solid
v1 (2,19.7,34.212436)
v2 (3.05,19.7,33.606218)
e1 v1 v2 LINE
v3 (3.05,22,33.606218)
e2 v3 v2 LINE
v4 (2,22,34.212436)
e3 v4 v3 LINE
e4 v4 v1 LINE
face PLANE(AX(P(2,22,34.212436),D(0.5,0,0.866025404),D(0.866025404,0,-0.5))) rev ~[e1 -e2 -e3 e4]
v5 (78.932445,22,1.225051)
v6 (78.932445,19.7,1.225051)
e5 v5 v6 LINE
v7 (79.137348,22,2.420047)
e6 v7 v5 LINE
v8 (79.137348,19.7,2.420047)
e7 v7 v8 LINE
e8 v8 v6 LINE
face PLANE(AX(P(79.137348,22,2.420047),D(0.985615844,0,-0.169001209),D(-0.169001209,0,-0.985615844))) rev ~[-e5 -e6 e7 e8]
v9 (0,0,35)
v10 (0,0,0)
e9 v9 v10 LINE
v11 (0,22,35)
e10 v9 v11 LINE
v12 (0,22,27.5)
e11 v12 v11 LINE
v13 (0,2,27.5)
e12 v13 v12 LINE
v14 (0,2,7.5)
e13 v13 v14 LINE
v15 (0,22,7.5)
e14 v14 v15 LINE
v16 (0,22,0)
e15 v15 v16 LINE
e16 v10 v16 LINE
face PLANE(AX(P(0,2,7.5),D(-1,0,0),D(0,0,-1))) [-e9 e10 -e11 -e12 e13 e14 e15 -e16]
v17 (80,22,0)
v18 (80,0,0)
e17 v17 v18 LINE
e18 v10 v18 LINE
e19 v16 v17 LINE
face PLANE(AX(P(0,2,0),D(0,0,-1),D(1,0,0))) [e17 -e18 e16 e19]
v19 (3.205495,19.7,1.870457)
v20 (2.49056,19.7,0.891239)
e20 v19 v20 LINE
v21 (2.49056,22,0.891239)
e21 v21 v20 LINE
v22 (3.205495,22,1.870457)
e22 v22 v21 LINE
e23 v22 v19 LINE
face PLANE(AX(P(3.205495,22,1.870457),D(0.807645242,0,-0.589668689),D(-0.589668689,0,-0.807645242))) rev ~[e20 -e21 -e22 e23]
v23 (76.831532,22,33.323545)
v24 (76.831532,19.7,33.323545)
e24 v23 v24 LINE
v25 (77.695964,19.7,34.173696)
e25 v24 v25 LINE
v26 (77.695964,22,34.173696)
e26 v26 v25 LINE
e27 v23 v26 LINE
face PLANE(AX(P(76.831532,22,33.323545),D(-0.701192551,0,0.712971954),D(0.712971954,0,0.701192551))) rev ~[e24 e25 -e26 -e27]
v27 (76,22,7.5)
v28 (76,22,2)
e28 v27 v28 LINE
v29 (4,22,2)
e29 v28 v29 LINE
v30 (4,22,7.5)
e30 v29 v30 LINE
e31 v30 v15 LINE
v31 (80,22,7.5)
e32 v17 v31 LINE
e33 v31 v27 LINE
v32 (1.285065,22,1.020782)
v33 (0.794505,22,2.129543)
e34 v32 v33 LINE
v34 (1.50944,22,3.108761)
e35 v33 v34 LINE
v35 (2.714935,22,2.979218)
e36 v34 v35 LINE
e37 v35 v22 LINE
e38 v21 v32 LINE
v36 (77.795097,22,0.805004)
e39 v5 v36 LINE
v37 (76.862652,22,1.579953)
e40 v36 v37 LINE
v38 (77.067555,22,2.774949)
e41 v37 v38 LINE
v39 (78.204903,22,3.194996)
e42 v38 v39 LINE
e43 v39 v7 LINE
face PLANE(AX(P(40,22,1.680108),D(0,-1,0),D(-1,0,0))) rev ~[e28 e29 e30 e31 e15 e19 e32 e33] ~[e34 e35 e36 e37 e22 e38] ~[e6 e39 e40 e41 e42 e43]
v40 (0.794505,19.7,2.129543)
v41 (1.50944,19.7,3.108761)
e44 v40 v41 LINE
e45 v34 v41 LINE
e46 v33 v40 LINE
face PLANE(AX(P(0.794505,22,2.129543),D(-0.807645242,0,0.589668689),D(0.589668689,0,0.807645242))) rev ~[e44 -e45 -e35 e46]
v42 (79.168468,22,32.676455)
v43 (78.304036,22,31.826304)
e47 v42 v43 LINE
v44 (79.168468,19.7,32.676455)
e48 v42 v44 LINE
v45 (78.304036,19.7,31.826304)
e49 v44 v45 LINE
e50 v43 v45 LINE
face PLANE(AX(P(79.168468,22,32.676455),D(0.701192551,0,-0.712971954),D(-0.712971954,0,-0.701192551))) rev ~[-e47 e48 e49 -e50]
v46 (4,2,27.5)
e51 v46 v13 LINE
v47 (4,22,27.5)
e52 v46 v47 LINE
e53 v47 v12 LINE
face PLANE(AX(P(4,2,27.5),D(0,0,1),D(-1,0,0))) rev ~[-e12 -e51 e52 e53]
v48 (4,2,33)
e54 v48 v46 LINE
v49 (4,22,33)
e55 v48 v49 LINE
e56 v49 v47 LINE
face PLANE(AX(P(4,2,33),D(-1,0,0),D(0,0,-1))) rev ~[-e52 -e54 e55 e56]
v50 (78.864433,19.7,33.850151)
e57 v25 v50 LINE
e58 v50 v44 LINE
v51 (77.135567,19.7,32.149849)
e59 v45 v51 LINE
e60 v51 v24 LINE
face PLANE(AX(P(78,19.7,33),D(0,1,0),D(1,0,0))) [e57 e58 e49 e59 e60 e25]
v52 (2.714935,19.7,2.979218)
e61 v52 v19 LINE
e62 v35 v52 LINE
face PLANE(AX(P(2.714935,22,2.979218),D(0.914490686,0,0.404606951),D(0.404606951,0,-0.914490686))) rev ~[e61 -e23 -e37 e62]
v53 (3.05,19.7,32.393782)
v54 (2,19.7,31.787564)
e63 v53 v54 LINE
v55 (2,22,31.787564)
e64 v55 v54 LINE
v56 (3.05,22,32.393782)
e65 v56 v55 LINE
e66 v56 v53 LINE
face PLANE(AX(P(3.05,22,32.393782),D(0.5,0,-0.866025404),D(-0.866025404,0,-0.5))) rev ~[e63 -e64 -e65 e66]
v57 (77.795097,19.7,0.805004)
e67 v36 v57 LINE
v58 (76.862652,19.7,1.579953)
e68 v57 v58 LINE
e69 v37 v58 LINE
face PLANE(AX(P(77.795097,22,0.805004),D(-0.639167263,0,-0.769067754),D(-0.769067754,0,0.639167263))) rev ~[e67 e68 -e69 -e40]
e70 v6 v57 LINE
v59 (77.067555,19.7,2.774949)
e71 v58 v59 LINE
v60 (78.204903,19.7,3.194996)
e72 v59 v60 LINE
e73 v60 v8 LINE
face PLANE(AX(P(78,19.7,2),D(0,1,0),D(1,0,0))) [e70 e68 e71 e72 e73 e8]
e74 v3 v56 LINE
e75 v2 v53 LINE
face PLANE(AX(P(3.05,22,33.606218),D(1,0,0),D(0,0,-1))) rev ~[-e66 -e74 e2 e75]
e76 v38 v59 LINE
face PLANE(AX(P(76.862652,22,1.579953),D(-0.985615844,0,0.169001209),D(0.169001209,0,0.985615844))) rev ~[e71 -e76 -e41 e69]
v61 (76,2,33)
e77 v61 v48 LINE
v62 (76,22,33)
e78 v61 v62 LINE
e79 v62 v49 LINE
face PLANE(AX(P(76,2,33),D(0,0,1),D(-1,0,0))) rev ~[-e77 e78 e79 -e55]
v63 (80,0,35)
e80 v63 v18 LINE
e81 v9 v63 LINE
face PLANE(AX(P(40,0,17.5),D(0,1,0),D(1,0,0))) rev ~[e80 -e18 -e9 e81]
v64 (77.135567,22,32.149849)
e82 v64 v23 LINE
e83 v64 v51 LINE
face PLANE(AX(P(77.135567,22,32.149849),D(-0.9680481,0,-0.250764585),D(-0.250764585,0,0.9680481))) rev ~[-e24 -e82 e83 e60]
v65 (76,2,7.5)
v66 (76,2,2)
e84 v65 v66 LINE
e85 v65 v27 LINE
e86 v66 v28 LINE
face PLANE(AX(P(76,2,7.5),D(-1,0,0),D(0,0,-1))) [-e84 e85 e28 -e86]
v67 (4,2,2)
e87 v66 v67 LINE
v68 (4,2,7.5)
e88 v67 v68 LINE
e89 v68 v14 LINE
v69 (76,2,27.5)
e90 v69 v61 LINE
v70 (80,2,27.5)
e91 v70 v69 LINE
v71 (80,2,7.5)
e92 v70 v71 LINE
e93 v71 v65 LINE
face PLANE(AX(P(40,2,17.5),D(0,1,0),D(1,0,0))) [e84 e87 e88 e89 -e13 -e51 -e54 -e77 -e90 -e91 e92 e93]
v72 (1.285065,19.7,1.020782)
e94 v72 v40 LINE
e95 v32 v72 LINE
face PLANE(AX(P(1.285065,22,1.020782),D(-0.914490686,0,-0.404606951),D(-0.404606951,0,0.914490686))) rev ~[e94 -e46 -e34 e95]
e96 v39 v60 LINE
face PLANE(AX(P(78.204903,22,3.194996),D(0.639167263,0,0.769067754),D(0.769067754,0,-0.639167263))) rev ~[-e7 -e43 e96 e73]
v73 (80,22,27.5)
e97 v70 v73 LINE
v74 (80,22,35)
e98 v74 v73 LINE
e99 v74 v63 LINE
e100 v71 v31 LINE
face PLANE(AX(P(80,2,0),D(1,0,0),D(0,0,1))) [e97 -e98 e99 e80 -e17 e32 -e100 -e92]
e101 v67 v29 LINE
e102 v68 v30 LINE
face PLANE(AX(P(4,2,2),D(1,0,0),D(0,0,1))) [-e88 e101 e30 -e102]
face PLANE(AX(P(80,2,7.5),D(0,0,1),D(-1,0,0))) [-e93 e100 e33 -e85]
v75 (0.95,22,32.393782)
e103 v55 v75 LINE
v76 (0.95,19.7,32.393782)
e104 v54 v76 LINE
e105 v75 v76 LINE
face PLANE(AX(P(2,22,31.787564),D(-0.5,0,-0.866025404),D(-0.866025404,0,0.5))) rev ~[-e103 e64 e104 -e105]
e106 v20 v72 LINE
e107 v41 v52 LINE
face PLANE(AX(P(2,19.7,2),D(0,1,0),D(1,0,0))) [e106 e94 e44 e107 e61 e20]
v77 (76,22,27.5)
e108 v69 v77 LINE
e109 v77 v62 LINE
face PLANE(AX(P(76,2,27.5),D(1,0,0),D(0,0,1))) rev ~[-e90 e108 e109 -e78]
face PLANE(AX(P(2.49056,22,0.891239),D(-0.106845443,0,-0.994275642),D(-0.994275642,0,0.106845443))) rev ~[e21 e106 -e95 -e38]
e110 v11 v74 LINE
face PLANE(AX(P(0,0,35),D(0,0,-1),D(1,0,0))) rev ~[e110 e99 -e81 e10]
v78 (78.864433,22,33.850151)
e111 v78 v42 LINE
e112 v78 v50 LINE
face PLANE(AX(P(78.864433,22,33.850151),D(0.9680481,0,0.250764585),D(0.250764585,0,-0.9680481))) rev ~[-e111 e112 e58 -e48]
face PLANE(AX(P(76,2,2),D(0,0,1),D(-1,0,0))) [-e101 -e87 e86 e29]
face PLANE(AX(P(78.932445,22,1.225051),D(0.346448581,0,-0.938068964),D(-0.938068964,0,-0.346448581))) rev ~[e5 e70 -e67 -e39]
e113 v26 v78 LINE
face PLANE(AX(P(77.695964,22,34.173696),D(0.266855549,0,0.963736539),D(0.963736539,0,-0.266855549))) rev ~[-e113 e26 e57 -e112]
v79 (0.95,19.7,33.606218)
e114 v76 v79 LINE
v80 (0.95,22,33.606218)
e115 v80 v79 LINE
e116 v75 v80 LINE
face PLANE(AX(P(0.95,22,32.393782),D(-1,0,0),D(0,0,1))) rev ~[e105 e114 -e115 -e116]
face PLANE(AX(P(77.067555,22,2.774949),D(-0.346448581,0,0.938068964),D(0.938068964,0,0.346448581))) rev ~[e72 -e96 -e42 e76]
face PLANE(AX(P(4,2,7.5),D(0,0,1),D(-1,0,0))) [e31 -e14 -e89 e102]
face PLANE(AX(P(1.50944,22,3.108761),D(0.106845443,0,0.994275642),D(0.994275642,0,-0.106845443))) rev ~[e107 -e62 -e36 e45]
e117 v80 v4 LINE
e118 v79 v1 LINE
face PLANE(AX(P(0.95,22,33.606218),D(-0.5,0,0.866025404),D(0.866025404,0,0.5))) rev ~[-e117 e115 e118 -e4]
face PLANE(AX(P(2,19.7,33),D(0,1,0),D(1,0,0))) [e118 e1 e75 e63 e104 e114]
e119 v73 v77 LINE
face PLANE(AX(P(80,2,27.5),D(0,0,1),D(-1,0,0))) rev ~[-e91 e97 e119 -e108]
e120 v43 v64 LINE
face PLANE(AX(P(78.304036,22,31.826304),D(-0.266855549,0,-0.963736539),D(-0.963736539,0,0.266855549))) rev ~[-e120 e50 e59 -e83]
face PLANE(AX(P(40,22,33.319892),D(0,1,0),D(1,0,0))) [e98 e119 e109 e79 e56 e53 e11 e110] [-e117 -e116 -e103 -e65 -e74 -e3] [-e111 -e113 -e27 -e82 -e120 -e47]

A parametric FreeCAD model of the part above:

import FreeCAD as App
import Part
import Sketcher
from FreeCAD import Vector
Q = App.Units.Quantity


def add_polygon(sketch, points):
    """Adds a closed chain of lines whose ends are joined by coincident constraints."""
    first, n = sketch.GeometryCount, len(points)
    for a, b in zip(points, points[1:] + points[:1]):
        sketch.addGeometry(Part.LineSegment(App.Vector(*a, 0), App.Vector(*b, 0)), False)
    for i in range(n):
        sketch.addConstraint(Sketcher.Constraint("Coincident", first + i, 2, first + (i + 1) % n, 1))

doc = App.newDocument("Part")
body = doc.addObject("PartDesign::Body", "Body")

sketch1 = body.newObject("Sketcher::SketchObject", "Sketch")
sketch1.AttachmentSupport = (doc.getObject("XZ_Plane"), [""])
sketch1.MapMode = "FlatFace"
add_polygon(sketch1, [(0, 0), (0, 35), (80, 35), (80, 0)])
sketch1.addConstraint([
    Sketcher.Constraint("Vertical", 0),
    Sketcher.Constraint("Horizontal", 1),
    Sketcher.Constraint("Vertical", 2),
    Sketcher.Constraint("Horizontal", 3),
    Sketcher.Constraint("Coincident", 3, 2, -1, 1),
    Sketcher.Constraint("DistanceX", 1, 1, 1, 2, 80.0),
    Sketcher.Constraint("DistanceY", 0, 1, 0, 2, 35.0),
])
pad1 = body.newObject("PartDesign::Pad", "Pad")
pad1.Profile = sketch1
pad1.Length = 2
pad1.Reversed = True

sketch2 = body.newObject("Sketcher::SketchObject", "Sketch001")
sketch2.AttachmentSupport = (doc.getObject("XZ_Plane"), [""])
sketch2.MapMode = "FlatFace"
sketch2.AttachmentOffset = App.Placement(Vector(0, 0, -2), App.Rotation())
add_polygon(sketch2, [(80, 0), (0, 0), (0, 7.5), (4, 7.5), (4, 2), (76, 2), (76, 7.5), (80, 7.5)])
add_polygon(sketch2, [(0, 35), (80, 35), (80, 27.5), (76, 27.5), (76, 33), (4, 33), (4, 27.5), (0, 27.5)])
sketch2.addConstraint([
    Sketcher.Constraint("Horizontal", 0),
    Sketcher.Constraint("Vertical", 1),
    Sketcher.Constraint("Horizontal", 2),
    Sketcher.Constraint("Vertical", 3),
    Sketcher.Constraint("Horizontal", 4),
    Sketcher.Constraint("Vertical", 5),
    Sketcher.Constraint("Horizontal", 6),
    Sketcher.Constraint("Vertical", 7),
    Sketcher.Constraint("Horizontal", 8),
    Sketcher.Constraint("Vertical", 9),
    Sketcher.Constraint("Horizontal", 10),
    Sketcher.Constraint("Vertical", 11),
    Sketcher.Constraint("Horizontal", 12),
    Sketcher.Constraint("Vertical", 13),
    Sketcher.Constraint("Horizontal", 14),
    Sketcher.Constraint("Vertical", 15),
    Sketcher.Constraint("Coincident", 0, 2, -1, 1),
    Sketcher.Constraint("PointOnObject", 14, 2, -2),
    Sketcher.Constraint("Horizontal", 2, 2, 5, 2),
    Sketcher.Constraint("Horizontal", 10, 2, 13, 2),
    Sketcher.Constraint("Vertical", 7, 2, 8, 2),
    Sketcher.Constraint("Vertical", 5, 2, 10, 2),
    Sketcher.Constraint("Vertical", 3, 2, 12, 2),
    Sketcher.Constraint("Equal", 2, 6),
    Sketcher.Constraint("Equal", 7, 9),
    Sketcher.Constraint("Equal", 5, 11),
    Sketcher.Constraint("DistanceX", 0, 2, 0, 1, 80.0),
    Sketcher.Constraint("DistanceX", 2, 1, 2, 2, 4.0),
    Sketcher.Constraint("DistanceY", 1, 1, 1, 2, 7.5),
    Sketcher.Constraint("DistanceY", 3, 2, 3, 1, 5.5),
    Sketcher.Constraint("DistanceY", -1, 1, 8, 2, 35.0),
])
pad2 = body.newObject("PartDesign::Pad", "Pad001")
pad2.Profile = sketch2
pad2.Length = 20
pad2.Reversed = True

sketch3 = body.newObject("Sketcher::SketchObject", "Sketch002")
sketch3.AttachmentSupport = (doc.getObject("XZ_Plane"), [""])
sketch3.MapMode = "FlatFace"
sketch3.AttachmentOffset = App.Placement(Vector(0, 0, -22), App.Rotation())
add_polygon(sketch3, [(2.5, 0.9), (1.3, 1), (0.8, 2.1), (1.5, 3.1), (2.7, 3), (3.2, 1.9)])
add_polygon(sketch3, [(2, 31.8), (0.9, 32.4), (0.9, 33.6), (2, 34.2), (3, 33.6), (3, 32.4)])
add_polygon(sketch3, [(78.3, 31.8), (77.1, 32.1), (76.8, 33.3), (77.7, 34.2), (78.9, 33.9), (79.2, 32.7)])
add_polygon(sketch3, [(78.9, 1.2), (77.8, 0.8), (76.9, 1.6), (77.1, 2.8), (78.2, 3.2), (79.1, 2.4)])
sketch3.addConstraint([
    Sketcher.Constraint("Vertical", 7),
    Sketcher.Constraint("Vertical", 10),
    Sketcher.Constraint("Parallel", 0, 3),
    Sketcher.Constraint("Parallel", 1, 4),
    Sketcher.Constraint("Parallel", 2, 5),
    Sketcher.Constraint("Parallel", 6, 9),
    Sketcher.Constraint("Parallel", 8, 11),
    Sketcher.Constraint("Parallel", 12, 15),
    Sketcher.Constraint("Parallel", 13, 16),
    Sketcher.Constraint("Parallel", 14, 17),
    Sketcher.Constraint("Parallel", 18, 21),
    Sketcher.Constraint("Parallel", 19, 22),
    Sketcher.Constraint("Parallel", 20, 23),
    Sketcher.Constraint("Horizontal", 7, 2, 9, 2),
    Sketcher.Constraint("Horizontal", 6, 2, 10, 2),
    Sketcher.Constraint("Vertical", 8, 2, 11, 2),
    Sketcher.Constraint("Equal", 0, 1),
    Sketcher.Constraint("Equal", 1, 2),
    Sketcher.Constraint("Equal", 2, 3),
    Sketcher.Constraint("Equal", 5, 6),
    Sketcher.Constraint("Equal", 11, 12),
    Sketcher.Constraint("Equal", 12, 13),
    Sketcher.Constraint("Equal", 13, 14),
    Sketcher.Constraint("Equal", 14, 15),
    Sketcher.Constraint("Equal", 17, 18),
    Sketcher.Constraint("Equal", 18, 19),
    Sketcher.Constraint("Equal", 19, 20),
    Sketcher.Constraint("Equal", 20, 21),
    Sketcher.Constraint("Angle", 6, Q("150 deg")),
    Sketcher.Constraint("DistanceX", -1, 1, 8, 2, 2.0),
    Sketcher.Constraint("DistanceX", 7, 2, 9, 2, 2.1),
    Sketcher.Constraint("DistanceY", 0, 2, 6, 2, 31.373),
    Sketcher.Constraint("DistanceY", 3, 2, 7, 2, 30.627),
    Sketcher.Constraint("DistanceX", 13, 2, 15, 2, 2.032901),
    Sketcher.Constraint("DistanceY", 12, 2, 15, 2, 1.700302),
    Sketcher.Constraint("DistanceY", 18, 2, 17, 2, 31.0213),
    Sketcher.Constraint("DistanceY", 19, 2, 16, 2, 31.096501),
    Sketcher.Constraint("DistanceY", 20, 2, 12, 2, 29.3749),
    Sketcher.Constraint("DistanceY", 23, 2, 20, 2, 1.549898),
    Sketcher.Constraint("DistanceY", 7, 1, 7, 2, 1.212436),
    Sketcher.Constraint("DistanceX", -1, 1, 2, 2, 1.50944),
    Sketcher.Constraint("DistanceY", -1, 1, 2, 2, 3.108761),
    Sketcher.Constraint("DistanceX", -1, 1, 5, 2, 2.49056),
    Sketcher.Constraint("DistanceY", -1, 1, 5, 2, 0.891239),
    Sketcher.Constraint("DistanceY", -1, 1, 12, 2, 32.149849),
    Sketcher.Constraint("DistanceX", -1, 1, 13, 2, 76.831532),
    Sketcher.Constraint("DistanceX", -1, 1, 16, 2, 79.168468),
    Sketcher.Constraint("DistanceX", -1, 1, 19, 2, 76.862652),
])
pocket1 = body.newObject("PartDesign::Pocket", "Pocket")
pocket1.Profile = sketch3
pocket1.Length = 2.3
pocket1.Reversed = True

doc.recompute()
